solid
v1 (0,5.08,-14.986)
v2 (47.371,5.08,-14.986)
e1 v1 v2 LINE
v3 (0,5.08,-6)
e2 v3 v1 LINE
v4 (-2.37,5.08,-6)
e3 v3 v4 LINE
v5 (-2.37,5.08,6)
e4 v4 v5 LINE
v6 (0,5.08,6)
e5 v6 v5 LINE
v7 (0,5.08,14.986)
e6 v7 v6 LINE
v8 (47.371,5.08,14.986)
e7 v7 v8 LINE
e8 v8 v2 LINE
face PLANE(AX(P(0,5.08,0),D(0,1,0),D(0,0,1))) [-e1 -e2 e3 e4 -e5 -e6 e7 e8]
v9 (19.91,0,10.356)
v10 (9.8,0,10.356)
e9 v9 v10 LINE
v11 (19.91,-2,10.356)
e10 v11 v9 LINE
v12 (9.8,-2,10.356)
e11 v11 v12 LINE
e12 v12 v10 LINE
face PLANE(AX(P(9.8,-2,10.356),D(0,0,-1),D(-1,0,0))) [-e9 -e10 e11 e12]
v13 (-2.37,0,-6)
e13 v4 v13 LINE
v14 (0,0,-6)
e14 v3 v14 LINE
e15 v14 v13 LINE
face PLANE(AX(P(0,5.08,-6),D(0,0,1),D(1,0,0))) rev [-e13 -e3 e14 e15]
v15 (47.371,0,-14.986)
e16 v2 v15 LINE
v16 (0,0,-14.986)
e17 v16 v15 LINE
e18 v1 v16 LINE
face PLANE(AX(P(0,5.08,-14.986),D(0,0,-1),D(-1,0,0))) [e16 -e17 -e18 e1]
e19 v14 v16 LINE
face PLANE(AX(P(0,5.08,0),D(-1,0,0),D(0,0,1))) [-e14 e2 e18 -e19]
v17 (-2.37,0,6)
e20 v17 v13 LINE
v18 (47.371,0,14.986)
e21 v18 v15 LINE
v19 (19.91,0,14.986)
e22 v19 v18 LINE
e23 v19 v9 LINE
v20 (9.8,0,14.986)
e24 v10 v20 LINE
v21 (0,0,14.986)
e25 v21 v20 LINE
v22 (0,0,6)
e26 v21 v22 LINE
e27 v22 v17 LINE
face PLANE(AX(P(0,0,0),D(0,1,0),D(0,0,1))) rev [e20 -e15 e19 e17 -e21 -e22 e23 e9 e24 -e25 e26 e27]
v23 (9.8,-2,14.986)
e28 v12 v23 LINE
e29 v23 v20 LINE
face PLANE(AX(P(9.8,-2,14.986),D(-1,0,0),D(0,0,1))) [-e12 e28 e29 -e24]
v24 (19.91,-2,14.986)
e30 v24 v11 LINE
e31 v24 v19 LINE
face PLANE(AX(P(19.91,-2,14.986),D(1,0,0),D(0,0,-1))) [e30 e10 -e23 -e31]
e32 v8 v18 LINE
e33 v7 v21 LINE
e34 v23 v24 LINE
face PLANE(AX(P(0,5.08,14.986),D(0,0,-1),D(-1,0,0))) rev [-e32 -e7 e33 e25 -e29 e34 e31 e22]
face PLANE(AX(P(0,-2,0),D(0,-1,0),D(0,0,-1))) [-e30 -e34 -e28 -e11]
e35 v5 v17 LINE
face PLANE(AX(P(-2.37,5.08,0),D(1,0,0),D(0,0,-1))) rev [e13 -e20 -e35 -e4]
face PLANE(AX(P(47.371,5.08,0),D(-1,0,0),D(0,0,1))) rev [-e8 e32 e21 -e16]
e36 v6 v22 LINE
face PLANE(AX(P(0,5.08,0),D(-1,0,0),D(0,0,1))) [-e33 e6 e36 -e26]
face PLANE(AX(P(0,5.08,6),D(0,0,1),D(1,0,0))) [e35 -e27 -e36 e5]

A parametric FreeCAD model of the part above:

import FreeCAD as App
import Part
import Sketcher

V = App.Vector
Q = App.Units.Quantity


def add_polygon(sketch, points):
    """Adds a closed chain of lines whose ends are joined by coincident constraints."""
    first, n = sketch.GeometryCount, len(points)
    for a, b in zip(points, points[1:] + points[:1]):
        sketch.addGeometry(Part.LineSegment(App.Vector(*a, 0), App.Vector(*b, 0)), False)
    for i in range(n):
        sketch.addConstraint(Sketcher.Constraint("Coincident", first + i, 2, first + (i + 1) % n, 1))

doc = App.newDocument("Part")
body = doc.addObject("PartDesign::Body", "Body")

sketch1 = doc.addObject("Sketcher::SketchObject", "Sketch")
body.addObject(sketch1)
sketch1.AttachmentSupport = (doc.XZ_Plane, [""])
sketch1.MapMode = "FlatFace"
add_polygon(sketch1, [(0, 6), (0, 15), (47, 15), (47, -15), (0, -15), (0, -6), (-18, -6), (-18, 6)])
sketch1.addConstraint([
    Sketcher.Constraint("Vertical", 0),
    Sketcher.Constraint("Horizontal", 1),
    Sketcher.Constraint("Vertical", 2),
    Sketcher.Constraint("Horizontal", 3),
    Sketcher.Constraint("Vertical", 4),
    Sketcher.Constraint("Horizontal", 5),
    Sketcher.Constraint("Vertical", 6),
    Sketcher.Constraint("Horizontal", 7),
    Sketcher.Constraint("Symmetric", 0, 2, 3, 2, -1, 1),
    Sketcher.Constraint("Symmetric", 4, 2, 7, 2, -1),
    Sketcher.Constraint("DistanceY", 2, 2, 2, 1, Q("1.18 in")),
    Sketcher.Constraint("DistanceX", 1, 1, 1, 2, Q("1.865 in")),
    Sketcher.Constraint("DistanceX", 5, 2, 5, 1, Q("0.725 in")),
    Sketcher.Constraint("DistanceY", 0, 1, 0, 2, 8.986),
])
pad1 = doc.addObject("PartDesign::Pad", "Pad")
body.addObject(pad1)
pad1.Profile = sketch1
pad1.Length = Q("0.2 in")
pad1.Reversed = True

sketch2 = doc.addObject("Sketcher::SketchObject", "Sketch001")
body.addObject(sketch2)
sketch2.AttachmentSupport = (doc.XZ_Plane, [""])
sketch2.MapMode = "FlatFace"
add_polygon(sketch2, [(9.8, 10.4), (9.8, 15), (19.9, 15), (19.9, 10.4)])
sketch2.addConstraint([
    Sketcher.Constraint("Vertical", 0),
    Sketcher.Constraint("Horizontal", 1),
    Sketcher.Constraint("Vertical", 2),
    Sketcher.Constraint("Horizontal", 3),
    Sketcher.Constraint("DistanceY", -1, 1, 0, 2, Q("0.59 in")),
    Sketcher.Constraint("DistanceX", 1, 1, 1, 2, 10.11),
    Sketcher.Constraint("DistanceY", 0, 1, 0, 2, 4.63),
    Sketcher.Constraint("DistanceX", -1, 1, 0, 2, 9.8),
])
pad2 = doc.addObject("PartDesign::Pad", "Pad001")
body.addObject(pad2)
pad2.Profile = sketch2
pad2.Length = 2

sketch3 = doc.addObject("Sketcher::SketchObject", "Sketch002")
body.addObject(sketch3)
sketch3.AttachmentSupport = (doc.XZ_Plane, [""])
sketch3.MapMode = "FlatFace"
add_polygon(sketch3, [(-18, -6), (-18, 6), (-2, 6), (-2, -6)])
sketch3.addConstraint([
    Sketcher.Constraint("Vertical", 0),
    Sketcher.Constraint("Horizontal", 1),
    Sketcher.Constraint("Vertical", 2),
    Sketcher.Constraint("Horizontal", 3),
    Sketcher.Constraint("DistanceX", 0, 2, -1, 1, Q("0.725 in")),
    Sketcher.Constraint("DistanceX", 1, 1, 1, 2, 16.045),
    Sketcher.Constraint("DistanceY", 0, 1, 0, 2, 12.0),
    Sketcher.Constraint("DistanceY", -1, 1, 0, 2, 6.0),
])
pocket1 = doc.addObject("PartDesign::Pocket", "Pocket")
body.addObject(pocket1)
pocket1.Profile = sketch3
pocket1.Type = "ThroughAll"
pocket1.Midplane = True

doc.recompute()
